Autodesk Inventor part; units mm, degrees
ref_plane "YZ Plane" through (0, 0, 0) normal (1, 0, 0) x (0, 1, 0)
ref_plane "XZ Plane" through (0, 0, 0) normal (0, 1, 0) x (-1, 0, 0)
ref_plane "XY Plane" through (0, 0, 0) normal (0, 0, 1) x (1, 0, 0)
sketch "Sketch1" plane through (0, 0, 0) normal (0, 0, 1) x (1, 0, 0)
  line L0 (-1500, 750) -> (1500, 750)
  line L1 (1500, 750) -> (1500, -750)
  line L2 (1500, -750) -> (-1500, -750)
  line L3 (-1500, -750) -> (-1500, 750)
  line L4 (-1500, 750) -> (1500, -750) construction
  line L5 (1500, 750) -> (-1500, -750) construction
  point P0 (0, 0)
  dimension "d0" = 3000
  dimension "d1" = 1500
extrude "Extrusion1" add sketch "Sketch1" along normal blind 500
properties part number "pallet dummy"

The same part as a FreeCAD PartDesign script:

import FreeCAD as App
import Part
import Sketcher

V = App.Vector
Q = App.Units.Quantity

doc = App.newDocument("Part")
params = doc.addObject("Spreadsheet::Sheet", "Params")
for row, (alias, value) in enumerate([
    ("sketch1_width", "3000 mm"),
    ("sketch1_height", "1500 mm"),
    ("pad1_length", "500 mm"),
], start=1):
    params.set(f"A{row}", alias)
    params.set(f"B{row}", "=" + value)
    params.setAlias(f"B{row}", alias)

body = doc.addObject("PartDesign::Body", "Body")

sketch1 = doc.addObject("Sketcher::SketchObject", "Sketch")
body.addObject(sketch1)
sketch1.AttachmentSupport = (doc.XY_Plane, [""])
sketch1.MapMode = "FlatFace"
sketch1.addGeometry(Part.LineSegment(V(1500, 750, 0), V(-1500, 750, 0)), False)
sketch1.addGeometry(Part.LineSegment(V(-1500, 750, 0), V(-1500, -750, 0)), False)
sketch1.addGeometry(Part.LineSegment(V(-1500, -750, 0), V(1500, -750, 0)), False)
sketch1.addGeometry(Part.LineSegment(V(1500, -750, 0), V(1500, 750, 0)), False)
sketch1.addConstraint(Sketcher.Constraint("Coincident", 0, 2, 1, 1))
sketch1.addConstraint(Sketcher.Constraint("Coincident", 1, 2, 2, 1))
sketch1.addConstraint(Sketcher.Constraint("Coincident", 2, 2, 3, 1))
sketch1.addConstraint(Sketcher.Constraint("Coincident", 3, 2, 0, 1))
sketch1.addConstraint(Sketcher.Constraint("Horizontal", 0))
sketch1.addConstraint(Sketcher.Constraint("Vertical", 1))
sketch1.addConstraint(Sketcher.Constraint("Horizontal", 2))
sketch1.addConstraint(Sketcher.Constraint("Vertical", 3))
sketch1.addConstraint(Sketcher.Constraint("Symmetric", 0, 2, 2, 2, -1, 1))
sketch1.addConstraint(Sketcher.Constraint("DistanceX", 0, 2, 0, 1, Q("3000 mm")))
sketch1.addConstraint(Sketcher.Constraint("DistanceY", 1, 2, 1, 1, Q("1500 mm")))
sketch1.setExpression("Constraints[9]", "Params.sketch1_width")
sketch1.setExpression("Constraints[10]", "Params.sketch1_height")
pad1 = doc.addObject("PartDesign::Pad", "Pad")
body.addObject(pad1)
pad1.Profile = sketch1
pad1.setExpression("Length", "Params.pad1_length")

doc.recompute()
